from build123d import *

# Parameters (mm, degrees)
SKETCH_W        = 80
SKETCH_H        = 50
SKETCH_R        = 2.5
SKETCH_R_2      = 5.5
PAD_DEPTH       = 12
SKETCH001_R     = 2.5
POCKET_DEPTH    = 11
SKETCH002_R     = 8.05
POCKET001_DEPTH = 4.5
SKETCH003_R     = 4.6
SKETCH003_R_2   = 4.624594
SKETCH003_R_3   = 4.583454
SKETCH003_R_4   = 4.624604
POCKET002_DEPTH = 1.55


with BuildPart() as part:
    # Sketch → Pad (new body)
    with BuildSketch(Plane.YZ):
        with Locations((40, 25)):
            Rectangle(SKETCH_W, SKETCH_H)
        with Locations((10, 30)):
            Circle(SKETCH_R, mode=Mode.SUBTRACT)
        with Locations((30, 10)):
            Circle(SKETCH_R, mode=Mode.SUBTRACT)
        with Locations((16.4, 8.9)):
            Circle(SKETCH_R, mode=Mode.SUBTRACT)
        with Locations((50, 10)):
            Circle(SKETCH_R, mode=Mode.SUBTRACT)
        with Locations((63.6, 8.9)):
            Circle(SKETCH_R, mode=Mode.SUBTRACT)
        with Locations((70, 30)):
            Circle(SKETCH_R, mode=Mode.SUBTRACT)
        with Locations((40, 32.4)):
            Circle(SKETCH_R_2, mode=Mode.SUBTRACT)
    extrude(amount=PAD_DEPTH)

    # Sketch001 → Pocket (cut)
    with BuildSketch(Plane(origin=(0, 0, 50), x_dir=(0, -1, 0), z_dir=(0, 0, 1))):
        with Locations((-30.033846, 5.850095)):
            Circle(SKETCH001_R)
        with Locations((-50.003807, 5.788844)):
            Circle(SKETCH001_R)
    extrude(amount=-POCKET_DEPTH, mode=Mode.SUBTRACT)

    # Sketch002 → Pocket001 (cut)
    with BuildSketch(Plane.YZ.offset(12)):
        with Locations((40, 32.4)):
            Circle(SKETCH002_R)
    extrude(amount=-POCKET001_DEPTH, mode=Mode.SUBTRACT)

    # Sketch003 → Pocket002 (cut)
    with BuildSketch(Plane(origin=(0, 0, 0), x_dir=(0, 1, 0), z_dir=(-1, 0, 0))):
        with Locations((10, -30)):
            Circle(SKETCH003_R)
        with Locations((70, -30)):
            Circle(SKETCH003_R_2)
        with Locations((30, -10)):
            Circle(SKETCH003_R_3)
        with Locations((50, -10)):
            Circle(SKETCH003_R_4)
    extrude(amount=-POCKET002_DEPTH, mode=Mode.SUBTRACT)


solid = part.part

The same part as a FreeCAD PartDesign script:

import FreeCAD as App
import Part
import Sketcher

V = App.Vector
Q = App.Units.Quantity


def add_polygon(sketch, points):
    """Adds a closed chain of lines whose ends are joined by coincident constraints."""
    first, n = sketch.GeometryCount, len(points)
    for a, b in zip(points, points[1:] + points[:1]):
        sketch.addGeometry(Part.LineSegment(App.Vector(*a, 0), App.Vector(*b, 0)), False)
    for i in range(n):
        sketch.addConstraint(Sketcher.Constraint("Coincident", first + i, 2, first + (i + 1) % n, 1))

doc = App.newDocument("Part")
params = doc.addObject("Spreadsheet::Sheet", "Params")
for row, (alias, value) in enumerate([
    ("sketch1_diameter", "5 mm"),
    ("sketch1_diameter2", "11 mm"),
    ("sketch1_width", "80 mm"),
    ("sketch1_height", "50 mm"),
    ("pad1_length", "12 mm"),
    ("sketch2_diameter", "5 mm"),
    ("pocket1_length", "11 mm"),
    ("sketch3_diameter", "16.1 mm"),
    ("pocket2_length", "4.5 mm"),
    ("sketch4_diameter", "9.2 mm"),
    ("pocket3_length", "1.55 mm"),
], start=1):
    params.set(f"A{row}", alias)
    params.set(f"B{row}", "=" + value)
    params.setAlias(f"B{row}", alias)

body = doc.addObject("PartDesign::Body", "Body")

sketch1 = body.newObject("Sketcher::SketchObject", "Sketch")
sketch1.AttachmentSupport = (doc.getObject("YZ_Plane"), [""])
sketch1.MapMode = "FlatFace"
add_polygon(sketch1, [(0, 50), (0, 0), (80, 0), (80, 50)])
sketch1.addGeometry(Part.Circle(V(16.4, 8.9, 0), V(0, 0, 1), 2.5), False)
sketch1.addGeometry(Part.Circle(V(30, 10, 0), V(0, 0, 1), 2.5), False)
sketch1.addGeometry(Part.Circle(V(50, 10, 0), V(0, 0, 1), 2.5), False)
sketch1.addGeometry(Part.Circle(V(63.6, 8.9, 0), V(0, 0, 1), 2.5), False)
sketch1.addGeometry(Part.Circle(V(10, 30, 0), V(0, 0, 1), 2.5), False)
sketch1.addGeometry(Part.Circle(V(70, 30, 0), V(0, 0, 1), 2.5), False)
sketch1.addGeometry(Part.Circle(V(40, 32.4, 0), V(0, 0, 1), 5.5), False)
sketch1.addConstraint([
    Sketcher.Constraint("Vertical", 0),
    Sketcher.Constraint("Horizontal", 1),
    Sketcher.Constraint("Vertical", 2),
    Sketcher.Constraint("Horizontal", 3),
    Sketcher.Constraint("Coincident", 0, 2, -1, 1),
    Sketcher.Constraint("Equal", 4, 5),
    Sketcher.Constraint("Equal", 5, 6),
    Sketcher.Constraint("Equal", 6, 7),
    Sketcher.Constraint("Equal", 7, 8),
    Sketcher.Constraint("Equal", 8, 9),
    Sketcher.Constraint("Horizontal", 5, 3, 6, 3),
    Sketcher.Constraint("Horizontal", 4, 3, 7, 3),
    Sketcher.Constraint("Horizontal", 8, 3, 9, 3),
    Sketcher.Constraint("Diameter", 4, Q("5 mm")),
    Sketcher.Constraint("Diameter", 10, Q("11 mm")),
    Sketcher.Constraint("DistanceX", 1, 1, 1, 2, Q("80 mm")),
    Sketcher.Constraint("DistanceY", 0, 2, 0, 1, Q("50 mm")),
    Sketcher.Constraint("DistanceX", -1, 1, 5, 3, Q("30 mm")),
    Sketcher.Constraint("DistanceY", -1, 1, 5, 3, Q("10 mm")),
    Sketcher.Constraint("DistanceX", -1, 1, 6, 3, Q("50 mm")),
    Sketcher.Constraint("DistanceX", -1, 1, 8, 3, Q("10 mm")),
    Sketcher.Constraint("DistanceY", -1, 1, 8, 3, Q("30 mm")),
    Sketcher.Constraint("DistanceX", -1, 1, 9, 3, Q("70 mm")),
    Sketcher.Constraint("DistanceX", -1, 1, 10, 3, Q("40 mm")),
    Sketcher.Constraint("DistanceX", -1, 1, 4, 3, Q("16.4 mm")),
    Sketcher.Constraint("DistanceY", -1, 1, 4, 3, Q("8.9 mm")),
    Sketcher.Constraint("DistanceX", -1, 1, 7, 3, Q("63.6 mm")),
    Sketcher.Constraint("DistanceY", -1, 1, 10, 3, Q("32.4 mm")),
])
sketch1.setExpression("Constraints[17]", "Params.sketch1_diameter")
sketch1.setExpression("Constraints[18]", "Params.sketch1_diameter2")
sketch1.setExpression("Constraints[19]", "Params.sketch1_width")
sketch1.setExpression("Constraints[20]", "Params.sketch1_height")
pad1 = body.newObject("PartDesign::Pad", "Pad")
pad1.Profile = sketch1
pad1.setExpression("Length", "Params.pad1_length")

sketch2 = body.newObject("Sketcher::SketchObject", "Sketch001")
sketch2.AttachmentSupport = (doc.getObject("XY_Plane"), [""])
sketch2.MapMode = "FlatFace"
sketch2.AttachmentOffset = App.Placement(V(0, 0, 50), App.Rotation())
sketch2.addGeometry([
    Part.Circle(V(5.850095, 30.033846, 0), V(0, 0, 1), 2.5),
    Part.Circle(V(5.788844, 50.003807, 0), V(0, 0, 1), 2.5),
], False)
sketch2.addConstraint([
    Sketcher.Constraint("Equal", 0, 1),
    Sketcher.Constraint("Diameter", 0, Q("5 mm")),
    Sketcher.Constraint("DistanceX", 1, 3, 0, 3, Q("0.061251 mm")),
    Sketcher.Constraint("DistanceY", 0, 3, 1, 3, Q("19.969961 mm")),
    Sketcher.Constraint("DistanceX", -1, 1, 0, 3, Q("5.850095 mm")),
    Sketcher.Constraint("DistanceY", -1, 1, 0, 3, Q("30.033846 mm")),
])
sketch2.setExpression("Constraints[1]", "Params.sketch2_diameter")
pocket1 = body.newObject("PartDesign::Pocket", "Pocket")
pocket1.Profile = sketch2
pocket1.setExpression("Length", "Params.pocket1_length")

sketch3 = body.newObject("Sketcher::SketchObject", "Sketch002")
sketch3.AttachmentSupport = (doc.getObject("YZ_Plane"), [""])
sketch3.MapMode = "FlatFace"
sketch3.AttachmentOffset = App.Placement(V(0, 0, 12), App.Rotation())
sketch3.addGeometry(Part.Circle(V(40, 32.4, 0), V(0, 0, 1), 8.05), False)
sketch3.addConstraint([
    Sketcher.Constraint("Diameter", 0, Q("16.1 mm")),
    Sketcher.Constraint("DistanceX", -1, 1, 0, 3, Q("40 mm")),
    Sketcher.Constraint("DistanceY", -1, 1, 0, 3, Q("32.4 mm")),
])
sketch3.setExpression("Constraints[0]", "Params.sketch3_diameter")
pocket2 = body.newObject("PartDesign::Pocket", "Pocket001")
pocket2.Profile = sketch3
pocket2.setExpression("Length", "Params.pocket2_length")

sketch4 = body.newObject("Sketcher::SketchObject", "Sketch003")
sketch4.AttachmentSupport = (doc.getObject("YZ_Plane"), [""])
sketch4.MapMode = "FlatFace"
sketch4.addGeometry([
    Part.Circle(V(10, 30, 0), V(0, 0, 1), 4.6),
    Part.Circle(V(70, 30, 0), V(0, 0, 1), 4.624594),
    Part.Circle(V(30, 10, 0), V(0, 0, 1), 4.583454),
    Part.Circle(V(50, 10, 0), V(0, 0, 1), 4.624604),
], False)
sketch4.addConstraint([
    Sketcher.Constraint("Horizontal", 0, 3, 1, 3),
    Sketcher.Constraint("Horizontal", 2, 3, 3, 3),
    Sketcher.Constraint("Diameter", 0, Q("9.2 mm")),
    Sketcher.Constraint("DistanceX", -1, 1, 0, 3, Q("10 mm")),
    Sketcher.Constraint("DistanceY", -1, 1, 0, 3, Q("30 mm")),
    Sketcher.Constraint("DistanceX", -1, 1, 1, 3, Q("70 mm")),
    Sketcher.Constraint("DistanceX", -1, 1, 2, 3, Q("30 mm")),
    Sketcher.Constraint("DistanceY", -1, 1, 2, 3, Q("10 mm")),
    Sketcher.Constraint("DistanceX", -1, 1, 3, 3, Q("50 mm")),
    Sketcher.Constraint("Diameter", 1, Q("9.249188 mm")),
    Sketcher.Constraint("Diameter", 2, Q("9.166908 mm")),
    Sketcher.Constraint("Diameter", 3, Q("9.249208 mm")),
])
sketch4.setExpression("Constraints[2]", "Params.sketch4_diameter")
pocket3 = body.newObject("PartDesign::Pocket", "Pocket002")
pocket3.Profile = sketch4
pocket3.setExpression("Length", "Params.pocket3_length")
pocket3.Reversed = True

doc.recompute()
